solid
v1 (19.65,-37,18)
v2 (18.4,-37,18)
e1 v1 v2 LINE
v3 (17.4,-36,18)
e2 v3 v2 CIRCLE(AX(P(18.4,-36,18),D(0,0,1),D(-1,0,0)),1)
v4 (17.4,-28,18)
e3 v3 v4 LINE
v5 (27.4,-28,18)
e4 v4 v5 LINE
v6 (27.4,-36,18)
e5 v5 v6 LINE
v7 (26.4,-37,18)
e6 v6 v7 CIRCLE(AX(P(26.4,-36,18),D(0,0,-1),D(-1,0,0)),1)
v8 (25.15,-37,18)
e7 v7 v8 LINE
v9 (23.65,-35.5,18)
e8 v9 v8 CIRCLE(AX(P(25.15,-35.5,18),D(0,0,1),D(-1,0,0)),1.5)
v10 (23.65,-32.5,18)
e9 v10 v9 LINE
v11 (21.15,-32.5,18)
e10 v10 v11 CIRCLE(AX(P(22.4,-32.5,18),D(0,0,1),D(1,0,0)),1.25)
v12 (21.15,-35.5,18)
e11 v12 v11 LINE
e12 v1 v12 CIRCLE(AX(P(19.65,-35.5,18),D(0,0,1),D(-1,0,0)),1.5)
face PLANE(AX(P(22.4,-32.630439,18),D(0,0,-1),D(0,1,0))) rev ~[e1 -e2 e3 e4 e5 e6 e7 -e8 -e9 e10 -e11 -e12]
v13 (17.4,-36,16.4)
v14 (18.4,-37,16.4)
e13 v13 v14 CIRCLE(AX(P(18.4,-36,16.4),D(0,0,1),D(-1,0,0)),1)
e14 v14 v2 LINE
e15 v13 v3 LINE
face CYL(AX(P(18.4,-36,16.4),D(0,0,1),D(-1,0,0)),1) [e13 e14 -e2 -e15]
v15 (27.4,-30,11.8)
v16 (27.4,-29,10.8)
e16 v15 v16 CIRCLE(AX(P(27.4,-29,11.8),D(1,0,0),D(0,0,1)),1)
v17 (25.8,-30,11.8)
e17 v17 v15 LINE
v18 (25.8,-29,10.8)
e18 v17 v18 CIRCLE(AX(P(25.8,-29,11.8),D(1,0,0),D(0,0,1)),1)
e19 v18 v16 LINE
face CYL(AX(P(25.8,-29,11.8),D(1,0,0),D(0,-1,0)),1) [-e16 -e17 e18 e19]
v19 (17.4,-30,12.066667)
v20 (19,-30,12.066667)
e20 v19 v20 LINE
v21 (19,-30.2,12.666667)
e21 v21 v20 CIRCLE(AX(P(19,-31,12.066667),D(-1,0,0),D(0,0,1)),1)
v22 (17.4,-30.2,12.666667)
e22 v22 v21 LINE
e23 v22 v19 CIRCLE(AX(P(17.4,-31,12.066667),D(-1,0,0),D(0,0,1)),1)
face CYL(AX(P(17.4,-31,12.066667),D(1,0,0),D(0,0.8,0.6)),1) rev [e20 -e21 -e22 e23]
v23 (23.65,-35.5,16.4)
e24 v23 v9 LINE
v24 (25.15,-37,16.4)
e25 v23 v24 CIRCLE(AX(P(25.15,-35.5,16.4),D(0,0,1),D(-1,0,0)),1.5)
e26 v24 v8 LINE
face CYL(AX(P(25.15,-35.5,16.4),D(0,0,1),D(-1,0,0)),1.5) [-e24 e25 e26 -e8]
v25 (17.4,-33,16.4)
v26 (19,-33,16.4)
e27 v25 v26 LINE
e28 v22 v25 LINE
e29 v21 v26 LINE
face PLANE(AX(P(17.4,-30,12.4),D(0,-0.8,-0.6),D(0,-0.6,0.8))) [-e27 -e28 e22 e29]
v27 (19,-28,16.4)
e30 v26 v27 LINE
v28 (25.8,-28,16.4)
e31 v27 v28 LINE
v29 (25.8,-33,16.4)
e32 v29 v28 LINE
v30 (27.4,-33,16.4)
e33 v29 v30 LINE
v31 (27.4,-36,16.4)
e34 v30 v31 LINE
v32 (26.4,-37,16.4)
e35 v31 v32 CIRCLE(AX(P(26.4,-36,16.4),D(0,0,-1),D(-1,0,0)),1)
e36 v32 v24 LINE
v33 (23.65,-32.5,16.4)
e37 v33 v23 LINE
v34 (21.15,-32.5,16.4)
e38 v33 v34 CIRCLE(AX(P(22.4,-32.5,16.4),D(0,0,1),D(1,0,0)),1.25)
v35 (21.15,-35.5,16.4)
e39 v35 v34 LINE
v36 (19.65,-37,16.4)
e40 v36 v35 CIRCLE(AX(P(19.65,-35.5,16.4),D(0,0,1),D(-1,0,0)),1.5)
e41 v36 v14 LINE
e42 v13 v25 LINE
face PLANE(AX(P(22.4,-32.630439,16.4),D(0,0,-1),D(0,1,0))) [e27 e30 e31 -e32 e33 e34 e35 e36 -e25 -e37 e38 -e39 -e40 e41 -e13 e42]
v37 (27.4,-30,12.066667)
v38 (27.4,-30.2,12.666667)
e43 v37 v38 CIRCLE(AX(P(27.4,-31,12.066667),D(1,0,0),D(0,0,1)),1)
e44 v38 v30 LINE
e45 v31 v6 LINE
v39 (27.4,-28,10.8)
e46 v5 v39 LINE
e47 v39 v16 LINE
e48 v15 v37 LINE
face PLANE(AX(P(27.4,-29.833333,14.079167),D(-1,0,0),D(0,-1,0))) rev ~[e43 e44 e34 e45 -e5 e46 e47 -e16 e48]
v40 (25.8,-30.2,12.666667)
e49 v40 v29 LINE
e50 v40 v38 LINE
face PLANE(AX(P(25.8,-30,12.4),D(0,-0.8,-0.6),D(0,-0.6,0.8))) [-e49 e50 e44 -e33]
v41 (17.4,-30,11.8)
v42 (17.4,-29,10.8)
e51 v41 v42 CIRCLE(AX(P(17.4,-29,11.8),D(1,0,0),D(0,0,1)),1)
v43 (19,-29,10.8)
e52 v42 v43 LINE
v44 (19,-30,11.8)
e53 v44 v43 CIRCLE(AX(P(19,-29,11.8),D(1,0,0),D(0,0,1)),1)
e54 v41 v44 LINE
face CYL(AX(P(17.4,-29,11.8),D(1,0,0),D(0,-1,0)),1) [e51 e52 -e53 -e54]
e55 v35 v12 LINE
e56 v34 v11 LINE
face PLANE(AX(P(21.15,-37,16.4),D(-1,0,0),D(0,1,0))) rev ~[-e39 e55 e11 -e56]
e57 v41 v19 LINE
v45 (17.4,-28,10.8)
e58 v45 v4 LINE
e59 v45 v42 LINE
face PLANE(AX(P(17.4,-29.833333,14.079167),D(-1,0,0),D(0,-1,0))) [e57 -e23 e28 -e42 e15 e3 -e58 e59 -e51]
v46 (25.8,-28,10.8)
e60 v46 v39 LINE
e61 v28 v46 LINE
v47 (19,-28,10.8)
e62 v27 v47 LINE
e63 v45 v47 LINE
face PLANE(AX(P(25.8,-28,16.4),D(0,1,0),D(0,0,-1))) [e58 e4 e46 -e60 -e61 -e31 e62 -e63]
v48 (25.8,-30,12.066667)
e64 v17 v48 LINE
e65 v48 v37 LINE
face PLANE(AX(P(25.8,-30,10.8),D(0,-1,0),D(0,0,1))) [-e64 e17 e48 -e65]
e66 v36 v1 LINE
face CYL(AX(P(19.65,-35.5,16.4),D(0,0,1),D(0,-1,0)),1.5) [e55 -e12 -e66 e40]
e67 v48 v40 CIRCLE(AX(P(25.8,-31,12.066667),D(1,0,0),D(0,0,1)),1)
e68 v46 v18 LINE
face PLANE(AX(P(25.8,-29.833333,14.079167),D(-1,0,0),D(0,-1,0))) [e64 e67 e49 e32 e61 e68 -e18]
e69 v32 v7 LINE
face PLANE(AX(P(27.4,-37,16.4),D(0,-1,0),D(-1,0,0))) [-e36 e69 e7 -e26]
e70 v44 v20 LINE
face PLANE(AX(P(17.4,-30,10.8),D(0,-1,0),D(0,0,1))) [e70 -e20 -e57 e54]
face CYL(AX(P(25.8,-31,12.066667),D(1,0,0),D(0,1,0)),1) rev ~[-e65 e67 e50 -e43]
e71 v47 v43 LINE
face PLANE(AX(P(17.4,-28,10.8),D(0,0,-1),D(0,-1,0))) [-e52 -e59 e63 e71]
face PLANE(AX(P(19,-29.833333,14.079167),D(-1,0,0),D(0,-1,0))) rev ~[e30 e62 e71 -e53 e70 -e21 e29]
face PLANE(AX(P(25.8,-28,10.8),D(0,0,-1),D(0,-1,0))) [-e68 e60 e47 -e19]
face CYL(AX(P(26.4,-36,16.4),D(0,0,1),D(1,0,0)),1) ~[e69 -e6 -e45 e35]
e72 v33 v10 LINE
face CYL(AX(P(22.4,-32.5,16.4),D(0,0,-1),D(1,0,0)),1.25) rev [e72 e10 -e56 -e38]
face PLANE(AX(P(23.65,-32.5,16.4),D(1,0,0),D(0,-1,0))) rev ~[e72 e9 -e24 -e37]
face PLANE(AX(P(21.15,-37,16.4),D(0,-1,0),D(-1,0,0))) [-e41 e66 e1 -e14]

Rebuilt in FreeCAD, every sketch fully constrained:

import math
import FreeCAD as App
import Part
import Sketcher

V = App.Vector
Q = App.Units.Quantity


def edges_at(feature, points):
    """Names of the edges that pass closest to the given points."""
    edges = feature.Shape.Edges
    near = lambda p: min(range(len(edges)), key=lambda i: edges[i].distToShape(Part.Vertex(*p))[0])
    return sorted({f"Edge{near(p) + 1}" for p in points})

doc = App.newDocument("Part")
params = doc.addObject("Spreadsheet::Sheet", "Params")
for row, (alias, value) in enumerate([
    ("sketch1_width", "9 mm"),
    ("sketch1_height", "10 mm"),
    ("sketch1_radius", "1.25 mm"),
    ("pad1_length", "1.6 mm"),
    ("sketch2_width", "2 mm"),
    ("sketch2_width2", "5 mm"),
    ("sketch2_length", "5 mm"),
    ("sketch2_height", "5.6 mm"),
    ("pad2_length", "1.6 mm"),
    ("linearpattern_pitch", "8.4 mm"),
    ("fillet_radius", "1 mm"),
    ("fillet2_radius", "1 mm"),
    ("fillet3_radius", "1 mm"),
    ("fillet4_radius", "1.5 mm"),
], start=1):
    params.set(f"A{row}", alias)
    params.set(f"B{row}", "=" + value)
    params.setAlias(f"B{row}", alias)

body = doc.addObject("PartDesign::Body", "Body")

# Sketch on XY plane
sketch1 = body.newObject("Sketcher::SketchObject", "Sketch")
sketch1.AttachmentSupport = (doc.getObject("XY_Plane"), [""])
sketch1.MapMode = "FlatFace"
sketch1.addGeometry([
    Part.LineSegment(V(4.5, 5, 0), V(-4.5, 5, 0)),  # 0
    Part.LineSegment(V(-4.5, 5, 0), V(-4.5, -5, 0)),  # 1
    Part.LineSegment(V(-4.5, -5, 0), V(4.5, -5, 0)),  # 2
    Part.LineSegment(V(4.5, -5, 0), V(4.5, -1.2, 0)),  # 3
    Part.LineSegment(V(4.5, -1.2, 0), V(0, -1.2, 0)),  # 4
    Part.ArcOfCircle(Part.Circle(V(0, 0, 0), V(0, 0, 1), 1.2), math.radians(90), math.radians(270)),  # 5
    Part.LineSegment(V(0, 1.2, 0), V(4.5, 1.2, 0)),  # 6
    Part.LineSegment(V(4.5, 1.2, 0), V(4.5, 5, 0)),  # 7
], False)
sketch1.addConstraint([
    Sketcher.Constraint("Coincident", 0, 2, 1, 1),
    Sketcher.Constraint("Coincident", 1, 2, 2, 1),
    Sketcher.Constraint("Coincident", 2, 2, 3, 1),
    Sketcher.Constraint("Coincident", 3, 2, 4, 1),
    Sketcher.Constraint("Tangent", 4, 2, 5, 2),
    Sketcher.Constraint("Tangent", 5, 1, 6, 1),
    Sketcher.Constraint("Coincident", 6, 2, 7, 1),
    Sketcher.Constraint("Coincident", 7, 2, 0, 1),
    Sketcher.Constraint("Horizontal", 0),
    Sketcher.Constraint("Vertical", 1),
    Sketcher.Constraint("Horizontal", 2),
    Sketcher.Constraint("Vertical", 3),
    Sketcher.Constraint("Horizontal", 4),
    Sketcher.Constraint("Horizontal", 6),
    Sketcher.Constraint("Vertical", 7),
    Sketcher.Constraint("Coincident", 5, 3, -1, 1),
    Sketcher.Constraint("Symmetric", 0, 2, 2, 2, -1, 1),
    Sketcher.Constraint("Vertical", 3, 2, 6, 2),
    Sketcher.Constraint("DistanceX", 0, 2, 0, 1, Q("9 mm")),
    Sketcher.Constraint("DistanceY", 1, 2, 1, 1, Q("10 mm")),
    Sketcher.Constraint("Radius", 5, Q("1.25 mm")),
])
sketch1.setExpression("Constraints[18]", "Params.sketch1_width")
sketch1.setExpression("Constraints[19]", "Params.sketch1_height")
sketch1.setExpression("Constraints[20]", "Params.sketch1_radius")
pad1 = body.newObject("PartDesign::Pad", "Pad")
pad1.Profile = sketch1
pad1.setExpression("Length", "Params.pad1_length")

# Sketch on XZ plane
sketch2 = body.newObject("Sketcher::SketchObject", "Sketch001")
sketch2.AttachmentSupport = (doc.getObject("XZ_Plane"), [""])
sketch2.MapMode = "FlatFace"
sketch2.AttachmentOffset = App.Placement(V(0, 0, 5), App.Rotation())
sketch2.addGeometry([
    Part.LineSegment(V(-4.5, 0, 0), V(-4.5, -5.6, 0)),  # 0
    Part.LineSegment(V(-4.5, -5.6, 0), V(-2.5, -5.6, 0)),  # 1
    Part.LineSegment(V(-2.5, -5.6, 0), V(-2.5, -4, 0)),  # 2
    Part.LineSegment(V(-2.5, -4, 0), V(0.5, 0, 0)),  # 3
    Part.LineSegment(V(0.5, 0, 0), V(-4.5, 0, 0)),  # 4
], False)
sketch2.addConstraint([
    Sketcher.Constraint("Coincident", 0, 2, 1, 1),
    Sketcher.Constraint("Coincident", 1, 2, 2, 1),
    Sketcher.Constraint("Coincident", 2, 2, 3, 1),
    Sketcher.Constraint("Coincident", 3, 2, 4, 1),
    Sketcher.Constraint("Coincident", 4, 2, 0, 1),
    Sketcher.Constraint("Vertical", 0),
    Sketcher.Constraint("Horizontal", 1),
    Sketcher.Constraint("Vertical", 2),
    Sketcher.Constraint("Horizontal", 4),
    Sketcher.Constraint("PointOnObject", 3, 2, -1),
    Sketcher.Constraint("DistanceX", 1, 1, 1, 2, Q("2 mm")),
    Sketcher.Constraint("DistanceX", 4, 2, 4, 1, Q("5 mm")),
    Sketcher.Constraint("Distance", 3, Q("5 mm")),
    Sketcher.Constraint("DistanceY", 0, 2, 0, 1, Q("5.6 mm")),
    Sketcher.Constraint("DistanceX", 0, 2, -1, 1, Q("4.5 mm")),
])
sketch2.setExpression("Constraints[10]", "Params.sketch2_width")
sketch2.setExpression("Constraints[11]", "Params.sketch2_width2")
sketch2.setExpression("Constraints[12]", "Params.sketch2_length")
sketch2.setExpression("Constraints[13]", "Params.sketch2_height")
pad2 = body.newObject("PartDesign::Pad", "Pad001")
pad2.Profile = sketch2
pad2.setExpression("Length", "Params.pad2_length")
pad2.Reversed = True
doc.recompute()

linearpattern = body.newObject("PartDesign::LinearPattern", "LinearPattern")
linearpattern.Originals = [pad2]
linearpattern.Direction = (doc.getObject("Y_Axis"), [""])
linearpattern.Mode = "offset"
linearpattern.setExpression("Offset", "Params.linearpattern_pitch")
linearpattern.Occurrences = 2
body.Tip = linearpattern
doc.recompute()

fillet = body.newObject("PartDesign::Fillet", "Fillet")
fillet.Base = (linearpattern, edges_at(linearpattern, [(-2.5, -4.2, -5.6), (-2.5, 4.2, -5.6)]))
fillet.setExpression("Radius", "Params.fillet_radius")
doc.recompute()

fillet2 = body.newObject("PartDesign::Fillet", "Fillet001")
fillet2.Base = (fillet, edges_at(fillet, [(-2.5, -4.2, -4), (-2.5, 4.2, -4)]))
fillet2.setExpression("Radius", "Params.fillet2_radius")
doc.recompute()

fillet3 = body.newObject("PartDesign::Fillet", "Fillet002")
fillet3.Base = (fillet2, edges_at(fillet2, [(4.5, -5, 0.8), (4.5, 5, 0.8)]))
fillet3.setExpression("Radius", "Params.fillet3_radius")
doc.recompute()

fillet4 = body.newObject("PartDesign::Fillet", "Fillet003")
fillet4.Base = (fillet3, edges_at(fillet3, [(4.5, -1.25, 0.8), (4.5, 1.25, 0.8)]))
fillet4.setExpression("Radius", "Params.fillet4_radius")
body2 = doc.addObject("PartDesign::Body", "Body001")
doc.recompute()

body.Placement = App.Placement(V(22.4, -32.5, 16.4), App.Rotation(V(0, 0, -1), 90))
boolean = body2.newObject("PartDesign::Boolean", "Boolean")
boolean.Type = "Fuse"
boolean.addObjects([body])

doc.recompute()
